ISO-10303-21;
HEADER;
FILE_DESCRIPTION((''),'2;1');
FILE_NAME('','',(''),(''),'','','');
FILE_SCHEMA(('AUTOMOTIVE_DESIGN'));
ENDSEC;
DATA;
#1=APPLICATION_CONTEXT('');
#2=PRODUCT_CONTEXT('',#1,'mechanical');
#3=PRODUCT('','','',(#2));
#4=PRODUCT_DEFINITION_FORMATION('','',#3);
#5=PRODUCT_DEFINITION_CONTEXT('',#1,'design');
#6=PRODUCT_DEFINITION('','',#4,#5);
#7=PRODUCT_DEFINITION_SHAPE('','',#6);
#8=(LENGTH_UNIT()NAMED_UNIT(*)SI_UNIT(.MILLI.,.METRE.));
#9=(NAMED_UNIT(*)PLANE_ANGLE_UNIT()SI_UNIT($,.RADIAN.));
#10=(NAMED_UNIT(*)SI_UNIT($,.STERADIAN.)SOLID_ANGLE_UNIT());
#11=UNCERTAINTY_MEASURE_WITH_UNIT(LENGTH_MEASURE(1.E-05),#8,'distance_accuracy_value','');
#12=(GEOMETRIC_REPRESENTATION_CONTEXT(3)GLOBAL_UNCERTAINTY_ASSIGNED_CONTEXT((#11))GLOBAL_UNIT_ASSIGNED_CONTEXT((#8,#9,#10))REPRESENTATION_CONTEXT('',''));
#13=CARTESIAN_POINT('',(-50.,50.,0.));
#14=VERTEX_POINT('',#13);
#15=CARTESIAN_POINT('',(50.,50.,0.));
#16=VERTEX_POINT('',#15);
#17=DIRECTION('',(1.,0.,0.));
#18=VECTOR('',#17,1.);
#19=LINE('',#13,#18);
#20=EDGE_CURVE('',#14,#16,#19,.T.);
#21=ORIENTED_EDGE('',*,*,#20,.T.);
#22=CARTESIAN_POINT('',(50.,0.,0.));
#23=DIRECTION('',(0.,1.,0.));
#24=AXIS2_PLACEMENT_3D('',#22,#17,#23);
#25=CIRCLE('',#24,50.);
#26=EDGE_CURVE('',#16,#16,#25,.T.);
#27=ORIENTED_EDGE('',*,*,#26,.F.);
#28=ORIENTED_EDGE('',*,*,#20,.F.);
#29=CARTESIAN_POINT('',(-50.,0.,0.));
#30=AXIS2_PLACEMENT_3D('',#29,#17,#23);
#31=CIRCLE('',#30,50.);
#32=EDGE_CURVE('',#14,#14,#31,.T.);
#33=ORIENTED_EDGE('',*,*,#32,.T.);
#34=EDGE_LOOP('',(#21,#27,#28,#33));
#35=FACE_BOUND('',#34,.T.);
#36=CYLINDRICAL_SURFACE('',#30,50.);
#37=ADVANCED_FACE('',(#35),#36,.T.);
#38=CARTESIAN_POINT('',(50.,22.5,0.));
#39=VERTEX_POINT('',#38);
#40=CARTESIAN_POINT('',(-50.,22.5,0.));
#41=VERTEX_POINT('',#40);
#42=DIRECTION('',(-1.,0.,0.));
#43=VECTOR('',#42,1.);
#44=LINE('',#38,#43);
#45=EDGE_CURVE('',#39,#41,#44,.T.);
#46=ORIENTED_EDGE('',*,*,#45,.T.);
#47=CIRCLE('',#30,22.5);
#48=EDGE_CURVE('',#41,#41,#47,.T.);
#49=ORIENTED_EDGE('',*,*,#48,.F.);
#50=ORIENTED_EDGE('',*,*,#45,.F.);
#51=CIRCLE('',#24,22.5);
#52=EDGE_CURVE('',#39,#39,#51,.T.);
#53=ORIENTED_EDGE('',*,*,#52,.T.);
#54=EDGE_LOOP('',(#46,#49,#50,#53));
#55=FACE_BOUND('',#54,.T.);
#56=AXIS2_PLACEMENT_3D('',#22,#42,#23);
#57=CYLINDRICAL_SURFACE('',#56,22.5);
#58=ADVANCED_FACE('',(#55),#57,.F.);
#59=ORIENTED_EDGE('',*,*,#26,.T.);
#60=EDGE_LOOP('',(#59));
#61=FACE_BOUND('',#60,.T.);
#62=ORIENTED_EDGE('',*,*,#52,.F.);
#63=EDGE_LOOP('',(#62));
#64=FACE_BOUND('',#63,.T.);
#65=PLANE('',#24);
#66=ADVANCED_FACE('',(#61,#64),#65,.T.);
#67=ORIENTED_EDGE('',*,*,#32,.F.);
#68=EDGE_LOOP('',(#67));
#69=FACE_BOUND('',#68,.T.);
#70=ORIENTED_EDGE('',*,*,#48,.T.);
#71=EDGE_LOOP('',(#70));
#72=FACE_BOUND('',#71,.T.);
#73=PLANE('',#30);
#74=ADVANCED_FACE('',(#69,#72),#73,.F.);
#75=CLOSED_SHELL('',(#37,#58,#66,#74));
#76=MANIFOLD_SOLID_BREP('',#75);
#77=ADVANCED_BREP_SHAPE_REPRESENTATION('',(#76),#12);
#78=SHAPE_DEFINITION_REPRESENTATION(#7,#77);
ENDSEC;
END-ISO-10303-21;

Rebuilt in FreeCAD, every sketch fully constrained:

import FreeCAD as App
import Part
import Sketcher

V = App.Vector
Q = App.Units.Quantity

doc = App.newDocument("Part")
body = doc.addObject("PartDesign::Body", "Body")

sketch1 = doc.addObject("Sketcher::SketchObject", "Sketch")
body.addObject(sketch1)
sketch1.AttachmentSupport = (doc.XY_Plane, [""])
sketch1.MapMode = "FlatFace"
sketch1.addGeometry([
    Part.LineSegment(V(50, 50, 0), V(-50, 50, 0)),
    Part.LineSegment(V(-50, 50, 0), V(-50, 22, 0)),
    Part.LineSegment(V(-50, 22, 0), V(50, 22, 0)),
    Part.LineSegment(V(50, 22, 0), V(50, 50, 0)),
], False)
sketch1.addConstraint([
    Sketcher.Constraint("Coincident", 0, 2, 1, 1),
    Sketcher.Constraint("Coincident", 1, 2, 2, 1),
    Sketcher.Constraint("Coincident", 2, 2, 3, 1),
    Sketcher.Constraint("Coincident", 3, 2, 0, 1),
    Sketcher.Constraint("Horizontal", 0),
    Sketcher.Constraint("Vertical", 1),
    Sketcher.Constraint("Horizontal", 2),
    Sketcher.Constraint("Vertical", 3),
    Sketcher.Constraint("DistanceX", 0, 2, 0, 1, Q("100 mm")),
    Sketcher.Constraint("DistanceX", 0, 2, -1, 1, Q("50 mm")),
    Sketcher.Constraint("DistanceY", -1, 1, 0, 2, Q("50 mm")),
    Sketcher.Constraint("DistanceY", -1, 1, 1, 2, Q("22.5 mm")),
])
revolution = doc.addObject("PartDesign::Revolution", "Revolution")
body.addObject(revolution)
revolution.Profile = sketch1
revolution.ReferenceAxis = (sketch1, ["H_Axis"])
revolution.Angle = 360

doc.recompute()
